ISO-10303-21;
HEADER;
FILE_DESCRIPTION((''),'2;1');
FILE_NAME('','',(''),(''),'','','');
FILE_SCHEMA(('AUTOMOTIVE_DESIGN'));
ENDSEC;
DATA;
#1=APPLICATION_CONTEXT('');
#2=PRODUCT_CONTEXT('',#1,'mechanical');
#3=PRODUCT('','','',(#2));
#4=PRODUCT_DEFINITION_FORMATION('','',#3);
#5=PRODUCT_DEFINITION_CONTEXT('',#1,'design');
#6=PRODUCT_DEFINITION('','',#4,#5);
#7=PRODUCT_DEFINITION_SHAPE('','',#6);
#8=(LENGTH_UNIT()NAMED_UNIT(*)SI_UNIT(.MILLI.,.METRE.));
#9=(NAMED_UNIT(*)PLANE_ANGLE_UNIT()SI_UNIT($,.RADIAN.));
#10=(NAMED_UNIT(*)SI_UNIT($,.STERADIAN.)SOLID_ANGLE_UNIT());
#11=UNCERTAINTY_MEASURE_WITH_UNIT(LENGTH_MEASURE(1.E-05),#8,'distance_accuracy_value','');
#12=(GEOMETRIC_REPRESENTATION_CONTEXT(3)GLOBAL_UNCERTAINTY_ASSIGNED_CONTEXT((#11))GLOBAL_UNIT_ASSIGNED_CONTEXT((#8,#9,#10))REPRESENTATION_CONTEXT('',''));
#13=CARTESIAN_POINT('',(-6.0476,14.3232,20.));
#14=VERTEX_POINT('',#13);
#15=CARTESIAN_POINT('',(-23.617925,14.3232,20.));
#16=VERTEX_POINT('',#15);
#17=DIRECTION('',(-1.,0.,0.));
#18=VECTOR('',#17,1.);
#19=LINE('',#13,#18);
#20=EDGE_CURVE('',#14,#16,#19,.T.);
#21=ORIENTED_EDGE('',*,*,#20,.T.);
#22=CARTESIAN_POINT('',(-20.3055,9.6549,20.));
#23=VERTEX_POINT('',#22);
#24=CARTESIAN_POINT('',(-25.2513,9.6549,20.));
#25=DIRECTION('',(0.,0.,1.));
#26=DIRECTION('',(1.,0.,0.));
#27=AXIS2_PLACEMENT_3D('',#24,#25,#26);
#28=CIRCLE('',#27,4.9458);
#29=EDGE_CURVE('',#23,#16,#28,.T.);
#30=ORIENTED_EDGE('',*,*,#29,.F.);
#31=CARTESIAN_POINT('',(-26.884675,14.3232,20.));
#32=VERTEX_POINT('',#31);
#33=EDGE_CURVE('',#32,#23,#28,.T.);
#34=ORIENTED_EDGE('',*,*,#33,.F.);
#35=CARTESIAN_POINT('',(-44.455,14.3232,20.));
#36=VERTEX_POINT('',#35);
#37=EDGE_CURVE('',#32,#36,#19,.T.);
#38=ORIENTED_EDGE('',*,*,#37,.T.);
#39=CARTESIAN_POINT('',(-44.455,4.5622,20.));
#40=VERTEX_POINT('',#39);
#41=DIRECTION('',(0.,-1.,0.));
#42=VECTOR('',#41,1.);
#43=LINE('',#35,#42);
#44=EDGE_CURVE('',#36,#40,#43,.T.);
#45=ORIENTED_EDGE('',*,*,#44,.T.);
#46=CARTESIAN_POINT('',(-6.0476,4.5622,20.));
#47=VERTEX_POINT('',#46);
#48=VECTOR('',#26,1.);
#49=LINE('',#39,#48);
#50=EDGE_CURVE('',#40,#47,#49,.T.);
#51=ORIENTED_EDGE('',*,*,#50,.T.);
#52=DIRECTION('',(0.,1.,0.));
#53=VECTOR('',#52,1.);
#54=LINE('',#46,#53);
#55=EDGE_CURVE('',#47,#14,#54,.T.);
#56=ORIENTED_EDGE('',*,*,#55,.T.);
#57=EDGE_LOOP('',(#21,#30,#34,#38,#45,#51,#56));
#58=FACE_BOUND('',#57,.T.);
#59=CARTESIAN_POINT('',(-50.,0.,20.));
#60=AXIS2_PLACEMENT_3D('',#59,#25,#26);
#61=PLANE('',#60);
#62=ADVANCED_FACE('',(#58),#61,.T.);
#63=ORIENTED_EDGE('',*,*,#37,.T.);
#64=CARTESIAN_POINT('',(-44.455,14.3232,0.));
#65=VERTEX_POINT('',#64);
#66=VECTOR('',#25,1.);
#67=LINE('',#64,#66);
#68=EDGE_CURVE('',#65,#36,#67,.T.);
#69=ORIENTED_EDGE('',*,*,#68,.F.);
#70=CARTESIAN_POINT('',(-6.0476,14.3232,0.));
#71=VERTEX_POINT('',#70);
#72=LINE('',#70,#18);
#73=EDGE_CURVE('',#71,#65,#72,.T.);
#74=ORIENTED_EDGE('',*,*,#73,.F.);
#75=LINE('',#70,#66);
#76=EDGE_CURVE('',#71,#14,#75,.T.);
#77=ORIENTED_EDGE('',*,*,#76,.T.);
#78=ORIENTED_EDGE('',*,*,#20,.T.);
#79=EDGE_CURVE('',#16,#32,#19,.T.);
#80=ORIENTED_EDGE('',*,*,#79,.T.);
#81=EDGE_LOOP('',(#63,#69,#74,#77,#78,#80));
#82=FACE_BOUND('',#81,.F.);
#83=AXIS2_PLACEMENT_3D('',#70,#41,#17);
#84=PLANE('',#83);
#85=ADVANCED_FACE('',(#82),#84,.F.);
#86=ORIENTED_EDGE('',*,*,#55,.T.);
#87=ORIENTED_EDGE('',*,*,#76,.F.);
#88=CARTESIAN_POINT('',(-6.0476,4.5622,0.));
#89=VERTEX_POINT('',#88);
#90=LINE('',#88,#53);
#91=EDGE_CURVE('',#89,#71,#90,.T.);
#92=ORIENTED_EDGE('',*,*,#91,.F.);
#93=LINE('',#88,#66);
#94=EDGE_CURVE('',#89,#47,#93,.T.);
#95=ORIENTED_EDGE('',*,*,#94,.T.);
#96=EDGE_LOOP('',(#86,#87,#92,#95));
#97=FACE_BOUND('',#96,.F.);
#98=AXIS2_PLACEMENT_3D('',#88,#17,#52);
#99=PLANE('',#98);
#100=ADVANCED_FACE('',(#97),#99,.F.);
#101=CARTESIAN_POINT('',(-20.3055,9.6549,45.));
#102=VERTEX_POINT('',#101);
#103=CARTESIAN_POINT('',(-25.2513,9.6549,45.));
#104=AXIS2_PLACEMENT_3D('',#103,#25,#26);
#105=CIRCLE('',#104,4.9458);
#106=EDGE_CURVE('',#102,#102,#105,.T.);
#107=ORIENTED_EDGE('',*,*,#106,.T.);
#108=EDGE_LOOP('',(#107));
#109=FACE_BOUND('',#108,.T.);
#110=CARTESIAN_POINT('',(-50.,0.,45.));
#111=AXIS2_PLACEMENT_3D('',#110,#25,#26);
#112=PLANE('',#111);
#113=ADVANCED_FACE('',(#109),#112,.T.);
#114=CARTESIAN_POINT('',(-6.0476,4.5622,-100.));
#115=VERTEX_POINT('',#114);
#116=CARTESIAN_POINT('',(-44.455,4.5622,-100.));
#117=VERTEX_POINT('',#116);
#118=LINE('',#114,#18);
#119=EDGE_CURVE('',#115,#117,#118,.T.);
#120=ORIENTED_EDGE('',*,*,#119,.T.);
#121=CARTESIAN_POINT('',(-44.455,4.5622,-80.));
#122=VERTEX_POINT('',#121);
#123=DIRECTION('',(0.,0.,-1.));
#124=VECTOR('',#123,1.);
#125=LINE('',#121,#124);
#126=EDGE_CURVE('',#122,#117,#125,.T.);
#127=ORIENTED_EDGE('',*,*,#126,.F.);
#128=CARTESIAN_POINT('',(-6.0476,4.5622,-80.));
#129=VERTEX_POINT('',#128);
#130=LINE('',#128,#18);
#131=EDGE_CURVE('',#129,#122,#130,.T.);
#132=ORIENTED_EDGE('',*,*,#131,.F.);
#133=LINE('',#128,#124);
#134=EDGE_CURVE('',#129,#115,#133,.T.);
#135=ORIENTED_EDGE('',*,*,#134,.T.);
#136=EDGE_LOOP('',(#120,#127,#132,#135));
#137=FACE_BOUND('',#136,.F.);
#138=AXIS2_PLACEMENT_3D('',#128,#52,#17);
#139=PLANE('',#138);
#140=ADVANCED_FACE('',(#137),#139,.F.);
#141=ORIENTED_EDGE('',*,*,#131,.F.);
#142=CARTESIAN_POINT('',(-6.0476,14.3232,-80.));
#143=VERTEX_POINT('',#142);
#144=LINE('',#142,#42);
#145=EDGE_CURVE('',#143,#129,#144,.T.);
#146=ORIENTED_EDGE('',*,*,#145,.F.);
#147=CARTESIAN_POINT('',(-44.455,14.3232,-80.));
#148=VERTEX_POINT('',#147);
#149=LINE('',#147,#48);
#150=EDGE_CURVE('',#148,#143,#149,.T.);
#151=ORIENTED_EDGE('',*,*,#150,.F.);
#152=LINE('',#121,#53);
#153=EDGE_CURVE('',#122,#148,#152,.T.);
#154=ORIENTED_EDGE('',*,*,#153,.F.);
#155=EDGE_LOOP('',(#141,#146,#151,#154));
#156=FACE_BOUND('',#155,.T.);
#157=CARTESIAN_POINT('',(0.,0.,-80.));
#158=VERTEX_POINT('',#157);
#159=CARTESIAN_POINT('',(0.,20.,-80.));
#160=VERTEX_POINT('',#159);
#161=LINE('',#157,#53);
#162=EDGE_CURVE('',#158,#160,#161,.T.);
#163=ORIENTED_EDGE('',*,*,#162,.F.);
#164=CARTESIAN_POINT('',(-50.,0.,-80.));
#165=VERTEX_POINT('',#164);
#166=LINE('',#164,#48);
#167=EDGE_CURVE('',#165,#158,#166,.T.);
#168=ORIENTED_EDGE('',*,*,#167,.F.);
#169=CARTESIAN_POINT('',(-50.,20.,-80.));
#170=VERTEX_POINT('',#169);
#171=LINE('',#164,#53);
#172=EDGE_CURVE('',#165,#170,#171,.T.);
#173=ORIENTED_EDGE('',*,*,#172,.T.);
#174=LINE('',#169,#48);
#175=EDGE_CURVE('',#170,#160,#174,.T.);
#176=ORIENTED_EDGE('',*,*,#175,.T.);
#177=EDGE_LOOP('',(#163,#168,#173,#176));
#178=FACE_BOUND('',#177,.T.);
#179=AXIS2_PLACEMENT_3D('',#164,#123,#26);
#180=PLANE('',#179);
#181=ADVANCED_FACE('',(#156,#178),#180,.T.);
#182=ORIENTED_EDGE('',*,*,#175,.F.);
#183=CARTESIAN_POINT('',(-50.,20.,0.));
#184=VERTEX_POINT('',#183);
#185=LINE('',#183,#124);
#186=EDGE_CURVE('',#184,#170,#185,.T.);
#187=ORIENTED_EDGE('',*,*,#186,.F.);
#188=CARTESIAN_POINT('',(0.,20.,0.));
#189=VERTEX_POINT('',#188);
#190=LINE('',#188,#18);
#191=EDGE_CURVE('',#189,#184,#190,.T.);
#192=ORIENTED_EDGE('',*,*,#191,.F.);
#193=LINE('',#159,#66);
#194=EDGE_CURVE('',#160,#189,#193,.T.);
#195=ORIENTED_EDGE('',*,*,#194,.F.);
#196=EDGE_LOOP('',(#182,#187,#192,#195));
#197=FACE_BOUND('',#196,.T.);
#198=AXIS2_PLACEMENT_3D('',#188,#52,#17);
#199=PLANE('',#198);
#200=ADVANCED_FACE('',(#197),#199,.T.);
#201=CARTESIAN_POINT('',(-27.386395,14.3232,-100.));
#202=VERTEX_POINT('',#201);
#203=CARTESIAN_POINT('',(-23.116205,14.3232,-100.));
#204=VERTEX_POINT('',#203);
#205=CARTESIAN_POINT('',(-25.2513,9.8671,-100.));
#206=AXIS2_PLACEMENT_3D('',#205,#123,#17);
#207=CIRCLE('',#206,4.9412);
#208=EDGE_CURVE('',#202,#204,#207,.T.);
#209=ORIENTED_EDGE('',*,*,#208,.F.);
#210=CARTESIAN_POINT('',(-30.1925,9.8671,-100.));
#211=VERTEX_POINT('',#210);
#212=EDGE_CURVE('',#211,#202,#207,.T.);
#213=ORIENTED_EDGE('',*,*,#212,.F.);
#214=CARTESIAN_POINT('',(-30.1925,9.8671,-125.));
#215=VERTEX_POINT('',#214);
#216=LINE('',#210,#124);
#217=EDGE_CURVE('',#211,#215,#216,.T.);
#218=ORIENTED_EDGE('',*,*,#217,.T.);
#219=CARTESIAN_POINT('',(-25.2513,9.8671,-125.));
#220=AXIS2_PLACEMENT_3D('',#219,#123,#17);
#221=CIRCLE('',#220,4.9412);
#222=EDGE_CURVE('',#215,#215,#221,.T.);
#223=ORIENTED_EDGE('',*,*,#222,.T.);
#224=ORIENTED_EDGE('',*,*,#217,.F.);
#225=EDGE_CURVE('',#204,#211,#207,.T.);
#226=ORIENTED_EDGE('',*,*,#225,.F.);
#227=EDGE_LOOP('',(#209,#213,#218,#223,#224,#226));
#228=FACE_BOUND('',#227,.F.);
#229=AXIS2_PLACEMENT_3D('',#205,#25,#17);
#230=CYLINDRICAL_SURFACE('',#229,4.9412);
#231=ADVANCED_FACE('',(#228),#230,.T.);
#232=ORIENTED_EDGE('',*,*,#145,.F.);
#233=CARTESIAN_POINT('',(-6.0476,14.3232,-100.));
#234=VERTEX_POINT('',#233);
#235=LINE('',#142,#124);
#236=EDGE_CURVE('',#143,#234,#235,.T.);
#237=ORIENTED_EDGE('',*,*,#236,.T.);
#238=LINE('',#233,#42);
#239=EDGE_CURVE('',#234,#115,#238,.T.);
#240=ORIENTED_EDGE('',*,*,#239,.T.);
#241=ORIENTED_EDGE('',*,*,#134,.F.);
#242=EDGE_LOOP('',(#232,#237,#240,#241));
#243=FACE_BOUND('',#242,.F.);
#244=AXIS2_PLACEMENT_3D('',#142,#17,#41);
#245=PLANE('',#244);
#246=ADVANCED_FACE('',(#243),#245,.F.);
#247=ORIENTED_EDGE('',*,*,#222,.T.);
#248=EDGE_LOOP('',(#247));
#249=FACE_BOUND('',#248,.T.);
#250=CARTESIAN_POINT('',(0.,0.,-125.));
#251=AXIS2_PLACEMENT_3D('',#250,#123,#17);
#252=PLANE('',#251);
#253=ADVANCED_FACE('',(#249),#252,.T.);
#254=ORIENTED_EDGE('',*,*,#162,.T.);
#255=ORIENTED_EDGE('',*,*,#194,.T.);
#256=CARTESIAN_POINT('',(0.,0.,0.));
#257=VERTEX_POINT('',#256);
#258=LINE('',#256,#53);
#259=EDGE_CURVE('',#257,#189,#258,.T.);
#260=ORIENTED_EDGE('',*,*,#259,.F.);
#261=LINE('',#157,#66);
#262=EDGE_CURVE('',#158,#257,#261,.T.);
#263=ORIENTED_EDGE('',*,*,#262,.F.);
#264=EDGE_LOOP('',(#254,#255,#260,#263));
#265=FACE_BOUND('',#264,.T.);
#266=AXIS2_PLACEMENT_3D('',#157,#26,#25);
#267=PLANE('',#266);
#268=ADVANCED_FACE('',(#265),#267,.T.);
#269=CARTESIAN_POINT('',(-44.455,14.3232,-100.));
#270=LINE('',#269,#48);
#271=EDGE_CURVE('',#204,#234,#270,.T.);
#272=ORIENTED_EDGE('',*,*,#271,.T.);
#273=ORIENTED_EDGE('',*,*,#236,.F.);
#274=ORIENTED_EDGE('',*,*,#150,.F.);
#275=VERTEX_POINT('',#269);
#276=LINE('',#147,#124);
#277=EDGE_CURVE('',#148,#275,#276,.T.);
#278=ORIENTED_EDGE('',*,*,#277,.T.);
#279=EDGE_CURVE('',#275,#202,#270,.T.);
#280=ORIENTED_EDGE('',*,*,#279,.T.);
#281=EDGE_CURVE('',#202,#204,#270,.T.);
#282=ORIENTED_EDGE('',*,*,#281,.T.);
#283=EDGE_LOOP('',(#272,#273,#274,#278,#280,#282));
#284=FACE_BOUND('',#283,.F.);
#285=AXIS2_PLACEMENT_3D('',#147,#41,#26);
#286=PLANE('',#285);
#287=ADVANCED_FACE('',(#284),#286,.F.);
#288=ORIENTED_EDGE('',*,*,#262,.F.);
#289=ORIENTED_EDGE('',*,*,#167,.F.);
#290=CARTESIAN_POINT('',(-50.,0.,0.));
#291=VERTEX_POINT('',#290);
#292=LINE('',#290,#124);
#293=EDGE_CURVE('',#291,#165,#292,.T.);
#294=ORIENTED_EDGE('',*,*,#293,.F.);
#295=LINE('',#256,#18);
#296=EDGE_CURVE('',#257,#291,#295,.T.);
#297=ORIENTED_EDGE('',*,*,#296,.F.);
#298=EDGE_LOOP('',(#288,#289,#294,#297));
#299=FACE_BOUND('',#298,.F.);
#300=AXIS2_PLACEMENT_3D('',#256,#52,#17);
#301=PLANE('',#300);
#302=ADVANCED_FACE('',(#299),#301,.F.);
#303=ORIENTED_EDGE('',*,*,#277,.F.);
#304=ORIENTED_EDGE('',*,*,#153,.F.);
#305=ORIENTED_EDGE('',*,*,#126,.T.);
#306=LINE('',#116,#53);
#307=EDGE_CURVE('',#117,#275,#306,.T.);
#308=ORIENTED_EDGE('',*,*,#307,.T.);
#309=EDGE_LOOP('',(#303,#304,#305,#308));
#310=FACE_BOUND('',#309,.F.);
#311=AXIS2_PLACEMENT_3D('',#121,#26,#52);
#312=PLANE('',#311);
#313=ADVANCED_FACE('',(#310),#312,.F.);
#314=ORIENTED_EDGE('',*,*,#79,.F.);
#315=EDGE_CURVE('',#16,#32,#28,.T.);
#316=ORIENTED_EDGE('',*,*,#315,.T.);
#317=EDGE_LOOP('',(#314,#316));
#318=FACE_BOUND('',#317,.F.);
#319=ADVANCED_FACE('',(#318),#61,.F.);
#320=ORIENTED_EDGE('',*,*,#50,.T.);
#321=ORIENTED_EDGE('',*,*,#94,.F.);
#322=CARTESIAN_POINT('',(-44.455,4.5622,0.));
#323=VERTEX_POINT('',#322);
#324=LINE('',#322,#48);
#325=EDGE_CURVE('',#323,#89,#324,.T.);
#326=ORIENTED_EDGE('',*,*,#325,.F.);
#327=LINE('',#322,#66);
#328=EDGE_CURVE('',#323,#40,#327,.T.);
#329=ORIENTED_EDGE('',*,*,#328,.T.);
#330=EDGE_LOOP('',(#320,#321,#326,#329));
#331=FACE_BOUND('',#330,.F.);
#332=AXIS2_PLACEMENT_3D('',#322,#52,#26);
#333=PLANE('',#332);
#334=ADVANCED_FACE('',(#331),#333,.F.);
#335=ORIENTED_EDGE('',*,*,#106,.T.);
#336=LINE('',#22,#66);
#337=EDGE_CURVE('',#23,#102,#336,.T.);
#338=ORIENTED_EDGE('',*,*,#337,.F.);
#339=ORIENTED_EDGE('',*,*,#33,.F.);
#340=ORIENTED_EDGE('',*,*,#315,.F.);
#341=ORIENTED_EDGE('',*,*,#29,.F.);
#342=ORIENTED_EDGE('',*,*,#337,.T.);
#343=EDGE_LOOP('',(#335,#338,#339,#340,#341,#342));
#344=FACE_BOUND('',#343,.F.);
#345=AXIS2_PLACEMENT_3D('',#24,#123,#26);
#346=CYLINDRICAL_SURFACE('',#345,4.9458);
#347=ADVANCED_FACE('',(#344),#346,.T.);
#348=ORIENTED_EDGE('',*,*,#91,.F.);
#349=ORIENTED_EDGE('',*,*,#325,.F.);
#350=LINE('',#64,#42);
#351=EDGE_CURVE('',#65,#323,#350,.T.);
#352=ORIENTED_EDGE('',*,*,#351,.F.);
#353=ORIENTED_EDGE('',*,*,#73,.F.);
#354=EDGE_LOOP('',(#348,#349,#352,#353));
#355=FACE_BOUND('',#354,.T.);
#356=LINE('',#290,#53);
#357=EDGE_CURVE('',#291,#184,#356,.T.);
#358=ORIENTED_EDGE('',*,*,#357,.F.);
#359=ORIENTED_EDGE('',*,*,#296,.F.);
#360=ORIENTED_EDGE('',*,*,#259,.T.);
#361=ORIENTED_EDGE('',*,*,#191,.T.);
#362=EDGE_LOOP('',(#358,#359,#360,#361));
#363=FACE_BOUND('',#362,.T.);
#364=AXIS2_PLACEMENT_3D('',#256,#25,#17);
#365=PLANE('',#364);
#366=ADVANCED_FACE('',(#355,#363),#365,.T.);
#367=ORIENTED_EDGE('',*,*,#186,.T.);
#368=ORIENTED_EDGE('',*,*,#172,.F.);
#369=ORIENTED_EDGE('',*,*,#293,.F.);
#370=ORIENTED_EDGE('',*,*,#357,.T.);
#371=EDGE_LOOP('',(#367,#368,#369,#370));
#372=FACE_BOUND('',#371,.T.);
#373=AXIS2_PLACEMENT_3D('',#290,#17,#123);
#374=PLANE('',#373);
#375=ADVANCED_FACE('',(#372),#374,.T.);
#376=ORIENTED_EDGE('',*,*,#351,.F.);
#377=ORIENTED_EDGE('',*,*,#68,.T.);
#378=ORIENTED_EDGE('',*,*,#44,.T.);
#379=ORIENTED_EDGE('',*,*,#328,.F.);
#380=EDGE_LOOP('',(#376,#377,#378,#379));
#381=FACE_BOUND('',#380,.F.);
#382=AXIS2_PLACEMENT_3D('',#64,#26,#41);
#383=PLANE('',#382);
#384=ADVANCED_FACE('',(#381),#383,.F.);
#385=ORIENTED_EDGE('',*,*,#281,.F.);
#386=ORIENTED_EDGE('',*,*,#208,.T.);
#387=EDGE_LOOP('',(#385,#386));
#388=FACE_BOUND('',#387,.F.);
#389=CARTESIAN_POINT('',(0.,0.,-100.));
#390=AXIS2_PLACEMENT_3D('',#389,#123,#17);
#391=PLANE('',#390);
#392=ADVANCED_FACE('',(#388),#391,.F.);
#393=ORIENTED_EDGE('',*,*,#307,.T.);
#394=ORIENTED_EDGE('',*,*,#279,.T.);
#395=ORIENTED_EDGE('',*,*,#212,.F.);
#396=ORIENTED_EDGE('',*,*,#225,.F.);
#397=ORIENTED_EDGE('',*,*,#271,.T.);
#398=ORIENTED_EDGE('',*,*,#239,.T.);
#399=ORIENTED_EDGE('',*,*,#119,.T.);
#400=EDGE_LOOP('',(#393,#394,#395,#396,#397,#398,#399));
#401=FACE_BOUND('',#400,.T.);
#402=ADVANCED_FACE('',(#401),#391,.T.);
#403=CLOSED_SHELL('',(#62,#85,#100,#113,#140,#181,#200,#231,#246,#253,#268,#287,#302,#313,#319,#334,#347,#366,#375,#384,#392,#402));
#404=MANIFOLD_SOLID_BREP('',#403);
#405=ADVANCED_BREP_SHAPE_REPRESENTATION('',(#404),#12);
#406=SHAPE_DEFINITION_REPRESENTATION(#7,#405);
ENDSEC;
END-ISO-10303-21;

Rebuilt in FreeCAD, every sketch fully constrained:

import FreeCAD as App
import Part
import Sketcher
from FreeCAD import Vector


def add_polygon(sketch, points):
    """Adds a closed chain of lines whose ends are joined by coincident constraints."""
    first, n = sketch.GeometryCount, len(points)
    for a, b in zip(points, points[1:] + points[:1]):
        sketch.addGeometry(Part.LineSegment(App.Vector(*a, 0), App.Vector(*b, 0)), False)
    for i in range(n):
        sketch.addConstraint(Sketcher.Constraint("Coincident", first + i, 2, first + (i + 1) % n, 1))

doc = App.newDocument("Part")
body = doc.addObject("PartDesign::Body", "Body")

sketch1 = body.newObject("Sketcher::SketchObject", "Sketch")
sketch1.AttachmentSupport = (doc.getObject("XZ_Plane"), [""])
sketch1.MapMode = "FlatFace"
add_polygon(sketch1, [(-50, 0), (0, 0), (0, -80), (-50, -80)])
sketch1.addConstraint([
    Sketcher.Constraint("Horizontal", 0),
    Sketcher.Constraint("Vertical", 1),
    Sketcher.Constraint("Horizontal", 2),
    Sketcher.Constraint("Vertical", 3),
    Sketcher.Constraint("Coincident", 0, 2, -1, 1),
    Sketcher.Constraint("DistanceX", 0, 1, 0, 2, 50.0),
    Sketcher.Constraint("DistanceY", 1, 2, 1, 1, 80.0),
])
pad1 = body.newObject("PartDesign::Pad", "Pad")
pad1.Profile = sketch1
pad1.Length = 20
pad1.Reversed = True

sketch2 = body.newObject("Sketcher::SketchObject", "Sketch001")
sketch2.AttachmentSupport = (doc.getObject("XY_Plane"), [""])
sketch2.MapMode = "FlatFace"
add_polygon(sketch2, [(-44, 14), (-44, 5), (-6, 5), (-6, 14)])
sketch2.addConstraint([
    Sketcher.Constraint("Vertical", 0),
    Sketcher.Constraint("Horizontal", 1),
    Sketcher.Constraint("Vertical", 2),
    Sketcher.Constraint("Horizontal", 3),
    Sketcher.Constraint("DistanceY", 0, 2, 0, 1, 9.761),
    Sketcher.Constraint("DistanceX", 1, 1, 1, 2, 38.4074),
    Sketcher.Constraint("DistanceX", 0, 2, -1, 1, 44.455),
    Sketcher.Constraint("DistanceY", -1, 1, 0, 2, 4.5622),
])
pad2 = body.newObject("PartDesign::Pad", "Pad001")
pad2.Profile = sketch2
pad2.Length = 20

sketch3 = body.newObject("Sketcher::SketchObject", "Sketch002")
sketch3.AttachmentSupport = (doc.getObject("XY_Plane"), [""])
sketch3.MapMode = "FlatFace"
sketch3.AttachmentOffset = App.Placement(Vector(0, 0, -80), App.Rotation())
add_polygon(sketch3, [(-44, 5), (-44, 14), (-6, 14), (-6, 5)])
sketch3.addConstraint([
    Sketcher.Constraint("Vertical", 0),
    Sketcher.Constraint("Horizontal", 1),
    Sketcher.Constraint("Vertical", 2),
    Sketcher.Constraint("Horizontal", 3),
    Sketcher.Constraint("DistanceY", 0, 1, 0, 2, 9.761),
    Sketcher.Constraint("DistanceX", 1, 1, 1, 2, 38.4074),
    Sketcher.Constraint("DistanceX", 0, 2, -1, 1, 44.455),
    Sketcher.Constraint("DistanceY", -1, 1, 0, 2, 14.3232),
])
pad3 = body.newObject("PartDesign::Pad", "Pad002")
pad3.Profile = sketch3
pad3.Length = 20
pad3.Reversed = True

sketch4 = body.newObject("Sketcher::SketchObject", "Sketch003")
sketch4.AttachmentSupport = (doc.getObject("XY_Plane"), [""])
sketch4.MapMode = "FlatFace"
sketch4.AttachmentOffset = App.Placement(Vector(0, 0, -100), App.Rotation())
sketch4.addGeometry(Part.Circle(Vector(-25.3, 9.9, 0), Vector(0, 0, 1), 4.9), False)
sketch4.addConstraint([
    Sketcher.Constraint("Diameter", 0, 9.8824),
    Sketcher.Constraint("DistanceY", -1, 1, 0, 3, 9.867),
    Sketcher.Constraint("DistanceX", 0, 3, -1, 1, 25.2513),
])
pad4 = body.newObject("PartDesign::Pad", "Pad003")
pad4.Profile = sketch4
pad4.Length = 25
pad4.Reversed = True

sketch5 = body.newObject("Sketcher::SketchObject", "Sketch004")
sketch5.AttachmentSupport = (doc.getObject("XY_Plane"), [""])
sketch5.MapMode = "FlatFace"
sketch5.AttachmentOffset = App.Placement(Vector(0, 0, 20), App.Rotation())
sketch5.addGeometry(Part.Circle(Vector(-25.3, 9.7, 0), Vector(0, 0, 1), 4.9), False)
sketch5.addConstraint([
    Sketcher.Constraint("Diameter", 0, 9.8916),
    Sketcher.Constraint("DistanceY", -1, 1, 0, 3, 9.655),
    Sketcher.Constraint("DistanceX", 0, 3, -1, 1, 25.2513),
])
pad5 = body.newObject("PartDesign::Pad", "Pad004")
pad5.Profile = sketch5
pad5.Length = 25

doc.recompute()
